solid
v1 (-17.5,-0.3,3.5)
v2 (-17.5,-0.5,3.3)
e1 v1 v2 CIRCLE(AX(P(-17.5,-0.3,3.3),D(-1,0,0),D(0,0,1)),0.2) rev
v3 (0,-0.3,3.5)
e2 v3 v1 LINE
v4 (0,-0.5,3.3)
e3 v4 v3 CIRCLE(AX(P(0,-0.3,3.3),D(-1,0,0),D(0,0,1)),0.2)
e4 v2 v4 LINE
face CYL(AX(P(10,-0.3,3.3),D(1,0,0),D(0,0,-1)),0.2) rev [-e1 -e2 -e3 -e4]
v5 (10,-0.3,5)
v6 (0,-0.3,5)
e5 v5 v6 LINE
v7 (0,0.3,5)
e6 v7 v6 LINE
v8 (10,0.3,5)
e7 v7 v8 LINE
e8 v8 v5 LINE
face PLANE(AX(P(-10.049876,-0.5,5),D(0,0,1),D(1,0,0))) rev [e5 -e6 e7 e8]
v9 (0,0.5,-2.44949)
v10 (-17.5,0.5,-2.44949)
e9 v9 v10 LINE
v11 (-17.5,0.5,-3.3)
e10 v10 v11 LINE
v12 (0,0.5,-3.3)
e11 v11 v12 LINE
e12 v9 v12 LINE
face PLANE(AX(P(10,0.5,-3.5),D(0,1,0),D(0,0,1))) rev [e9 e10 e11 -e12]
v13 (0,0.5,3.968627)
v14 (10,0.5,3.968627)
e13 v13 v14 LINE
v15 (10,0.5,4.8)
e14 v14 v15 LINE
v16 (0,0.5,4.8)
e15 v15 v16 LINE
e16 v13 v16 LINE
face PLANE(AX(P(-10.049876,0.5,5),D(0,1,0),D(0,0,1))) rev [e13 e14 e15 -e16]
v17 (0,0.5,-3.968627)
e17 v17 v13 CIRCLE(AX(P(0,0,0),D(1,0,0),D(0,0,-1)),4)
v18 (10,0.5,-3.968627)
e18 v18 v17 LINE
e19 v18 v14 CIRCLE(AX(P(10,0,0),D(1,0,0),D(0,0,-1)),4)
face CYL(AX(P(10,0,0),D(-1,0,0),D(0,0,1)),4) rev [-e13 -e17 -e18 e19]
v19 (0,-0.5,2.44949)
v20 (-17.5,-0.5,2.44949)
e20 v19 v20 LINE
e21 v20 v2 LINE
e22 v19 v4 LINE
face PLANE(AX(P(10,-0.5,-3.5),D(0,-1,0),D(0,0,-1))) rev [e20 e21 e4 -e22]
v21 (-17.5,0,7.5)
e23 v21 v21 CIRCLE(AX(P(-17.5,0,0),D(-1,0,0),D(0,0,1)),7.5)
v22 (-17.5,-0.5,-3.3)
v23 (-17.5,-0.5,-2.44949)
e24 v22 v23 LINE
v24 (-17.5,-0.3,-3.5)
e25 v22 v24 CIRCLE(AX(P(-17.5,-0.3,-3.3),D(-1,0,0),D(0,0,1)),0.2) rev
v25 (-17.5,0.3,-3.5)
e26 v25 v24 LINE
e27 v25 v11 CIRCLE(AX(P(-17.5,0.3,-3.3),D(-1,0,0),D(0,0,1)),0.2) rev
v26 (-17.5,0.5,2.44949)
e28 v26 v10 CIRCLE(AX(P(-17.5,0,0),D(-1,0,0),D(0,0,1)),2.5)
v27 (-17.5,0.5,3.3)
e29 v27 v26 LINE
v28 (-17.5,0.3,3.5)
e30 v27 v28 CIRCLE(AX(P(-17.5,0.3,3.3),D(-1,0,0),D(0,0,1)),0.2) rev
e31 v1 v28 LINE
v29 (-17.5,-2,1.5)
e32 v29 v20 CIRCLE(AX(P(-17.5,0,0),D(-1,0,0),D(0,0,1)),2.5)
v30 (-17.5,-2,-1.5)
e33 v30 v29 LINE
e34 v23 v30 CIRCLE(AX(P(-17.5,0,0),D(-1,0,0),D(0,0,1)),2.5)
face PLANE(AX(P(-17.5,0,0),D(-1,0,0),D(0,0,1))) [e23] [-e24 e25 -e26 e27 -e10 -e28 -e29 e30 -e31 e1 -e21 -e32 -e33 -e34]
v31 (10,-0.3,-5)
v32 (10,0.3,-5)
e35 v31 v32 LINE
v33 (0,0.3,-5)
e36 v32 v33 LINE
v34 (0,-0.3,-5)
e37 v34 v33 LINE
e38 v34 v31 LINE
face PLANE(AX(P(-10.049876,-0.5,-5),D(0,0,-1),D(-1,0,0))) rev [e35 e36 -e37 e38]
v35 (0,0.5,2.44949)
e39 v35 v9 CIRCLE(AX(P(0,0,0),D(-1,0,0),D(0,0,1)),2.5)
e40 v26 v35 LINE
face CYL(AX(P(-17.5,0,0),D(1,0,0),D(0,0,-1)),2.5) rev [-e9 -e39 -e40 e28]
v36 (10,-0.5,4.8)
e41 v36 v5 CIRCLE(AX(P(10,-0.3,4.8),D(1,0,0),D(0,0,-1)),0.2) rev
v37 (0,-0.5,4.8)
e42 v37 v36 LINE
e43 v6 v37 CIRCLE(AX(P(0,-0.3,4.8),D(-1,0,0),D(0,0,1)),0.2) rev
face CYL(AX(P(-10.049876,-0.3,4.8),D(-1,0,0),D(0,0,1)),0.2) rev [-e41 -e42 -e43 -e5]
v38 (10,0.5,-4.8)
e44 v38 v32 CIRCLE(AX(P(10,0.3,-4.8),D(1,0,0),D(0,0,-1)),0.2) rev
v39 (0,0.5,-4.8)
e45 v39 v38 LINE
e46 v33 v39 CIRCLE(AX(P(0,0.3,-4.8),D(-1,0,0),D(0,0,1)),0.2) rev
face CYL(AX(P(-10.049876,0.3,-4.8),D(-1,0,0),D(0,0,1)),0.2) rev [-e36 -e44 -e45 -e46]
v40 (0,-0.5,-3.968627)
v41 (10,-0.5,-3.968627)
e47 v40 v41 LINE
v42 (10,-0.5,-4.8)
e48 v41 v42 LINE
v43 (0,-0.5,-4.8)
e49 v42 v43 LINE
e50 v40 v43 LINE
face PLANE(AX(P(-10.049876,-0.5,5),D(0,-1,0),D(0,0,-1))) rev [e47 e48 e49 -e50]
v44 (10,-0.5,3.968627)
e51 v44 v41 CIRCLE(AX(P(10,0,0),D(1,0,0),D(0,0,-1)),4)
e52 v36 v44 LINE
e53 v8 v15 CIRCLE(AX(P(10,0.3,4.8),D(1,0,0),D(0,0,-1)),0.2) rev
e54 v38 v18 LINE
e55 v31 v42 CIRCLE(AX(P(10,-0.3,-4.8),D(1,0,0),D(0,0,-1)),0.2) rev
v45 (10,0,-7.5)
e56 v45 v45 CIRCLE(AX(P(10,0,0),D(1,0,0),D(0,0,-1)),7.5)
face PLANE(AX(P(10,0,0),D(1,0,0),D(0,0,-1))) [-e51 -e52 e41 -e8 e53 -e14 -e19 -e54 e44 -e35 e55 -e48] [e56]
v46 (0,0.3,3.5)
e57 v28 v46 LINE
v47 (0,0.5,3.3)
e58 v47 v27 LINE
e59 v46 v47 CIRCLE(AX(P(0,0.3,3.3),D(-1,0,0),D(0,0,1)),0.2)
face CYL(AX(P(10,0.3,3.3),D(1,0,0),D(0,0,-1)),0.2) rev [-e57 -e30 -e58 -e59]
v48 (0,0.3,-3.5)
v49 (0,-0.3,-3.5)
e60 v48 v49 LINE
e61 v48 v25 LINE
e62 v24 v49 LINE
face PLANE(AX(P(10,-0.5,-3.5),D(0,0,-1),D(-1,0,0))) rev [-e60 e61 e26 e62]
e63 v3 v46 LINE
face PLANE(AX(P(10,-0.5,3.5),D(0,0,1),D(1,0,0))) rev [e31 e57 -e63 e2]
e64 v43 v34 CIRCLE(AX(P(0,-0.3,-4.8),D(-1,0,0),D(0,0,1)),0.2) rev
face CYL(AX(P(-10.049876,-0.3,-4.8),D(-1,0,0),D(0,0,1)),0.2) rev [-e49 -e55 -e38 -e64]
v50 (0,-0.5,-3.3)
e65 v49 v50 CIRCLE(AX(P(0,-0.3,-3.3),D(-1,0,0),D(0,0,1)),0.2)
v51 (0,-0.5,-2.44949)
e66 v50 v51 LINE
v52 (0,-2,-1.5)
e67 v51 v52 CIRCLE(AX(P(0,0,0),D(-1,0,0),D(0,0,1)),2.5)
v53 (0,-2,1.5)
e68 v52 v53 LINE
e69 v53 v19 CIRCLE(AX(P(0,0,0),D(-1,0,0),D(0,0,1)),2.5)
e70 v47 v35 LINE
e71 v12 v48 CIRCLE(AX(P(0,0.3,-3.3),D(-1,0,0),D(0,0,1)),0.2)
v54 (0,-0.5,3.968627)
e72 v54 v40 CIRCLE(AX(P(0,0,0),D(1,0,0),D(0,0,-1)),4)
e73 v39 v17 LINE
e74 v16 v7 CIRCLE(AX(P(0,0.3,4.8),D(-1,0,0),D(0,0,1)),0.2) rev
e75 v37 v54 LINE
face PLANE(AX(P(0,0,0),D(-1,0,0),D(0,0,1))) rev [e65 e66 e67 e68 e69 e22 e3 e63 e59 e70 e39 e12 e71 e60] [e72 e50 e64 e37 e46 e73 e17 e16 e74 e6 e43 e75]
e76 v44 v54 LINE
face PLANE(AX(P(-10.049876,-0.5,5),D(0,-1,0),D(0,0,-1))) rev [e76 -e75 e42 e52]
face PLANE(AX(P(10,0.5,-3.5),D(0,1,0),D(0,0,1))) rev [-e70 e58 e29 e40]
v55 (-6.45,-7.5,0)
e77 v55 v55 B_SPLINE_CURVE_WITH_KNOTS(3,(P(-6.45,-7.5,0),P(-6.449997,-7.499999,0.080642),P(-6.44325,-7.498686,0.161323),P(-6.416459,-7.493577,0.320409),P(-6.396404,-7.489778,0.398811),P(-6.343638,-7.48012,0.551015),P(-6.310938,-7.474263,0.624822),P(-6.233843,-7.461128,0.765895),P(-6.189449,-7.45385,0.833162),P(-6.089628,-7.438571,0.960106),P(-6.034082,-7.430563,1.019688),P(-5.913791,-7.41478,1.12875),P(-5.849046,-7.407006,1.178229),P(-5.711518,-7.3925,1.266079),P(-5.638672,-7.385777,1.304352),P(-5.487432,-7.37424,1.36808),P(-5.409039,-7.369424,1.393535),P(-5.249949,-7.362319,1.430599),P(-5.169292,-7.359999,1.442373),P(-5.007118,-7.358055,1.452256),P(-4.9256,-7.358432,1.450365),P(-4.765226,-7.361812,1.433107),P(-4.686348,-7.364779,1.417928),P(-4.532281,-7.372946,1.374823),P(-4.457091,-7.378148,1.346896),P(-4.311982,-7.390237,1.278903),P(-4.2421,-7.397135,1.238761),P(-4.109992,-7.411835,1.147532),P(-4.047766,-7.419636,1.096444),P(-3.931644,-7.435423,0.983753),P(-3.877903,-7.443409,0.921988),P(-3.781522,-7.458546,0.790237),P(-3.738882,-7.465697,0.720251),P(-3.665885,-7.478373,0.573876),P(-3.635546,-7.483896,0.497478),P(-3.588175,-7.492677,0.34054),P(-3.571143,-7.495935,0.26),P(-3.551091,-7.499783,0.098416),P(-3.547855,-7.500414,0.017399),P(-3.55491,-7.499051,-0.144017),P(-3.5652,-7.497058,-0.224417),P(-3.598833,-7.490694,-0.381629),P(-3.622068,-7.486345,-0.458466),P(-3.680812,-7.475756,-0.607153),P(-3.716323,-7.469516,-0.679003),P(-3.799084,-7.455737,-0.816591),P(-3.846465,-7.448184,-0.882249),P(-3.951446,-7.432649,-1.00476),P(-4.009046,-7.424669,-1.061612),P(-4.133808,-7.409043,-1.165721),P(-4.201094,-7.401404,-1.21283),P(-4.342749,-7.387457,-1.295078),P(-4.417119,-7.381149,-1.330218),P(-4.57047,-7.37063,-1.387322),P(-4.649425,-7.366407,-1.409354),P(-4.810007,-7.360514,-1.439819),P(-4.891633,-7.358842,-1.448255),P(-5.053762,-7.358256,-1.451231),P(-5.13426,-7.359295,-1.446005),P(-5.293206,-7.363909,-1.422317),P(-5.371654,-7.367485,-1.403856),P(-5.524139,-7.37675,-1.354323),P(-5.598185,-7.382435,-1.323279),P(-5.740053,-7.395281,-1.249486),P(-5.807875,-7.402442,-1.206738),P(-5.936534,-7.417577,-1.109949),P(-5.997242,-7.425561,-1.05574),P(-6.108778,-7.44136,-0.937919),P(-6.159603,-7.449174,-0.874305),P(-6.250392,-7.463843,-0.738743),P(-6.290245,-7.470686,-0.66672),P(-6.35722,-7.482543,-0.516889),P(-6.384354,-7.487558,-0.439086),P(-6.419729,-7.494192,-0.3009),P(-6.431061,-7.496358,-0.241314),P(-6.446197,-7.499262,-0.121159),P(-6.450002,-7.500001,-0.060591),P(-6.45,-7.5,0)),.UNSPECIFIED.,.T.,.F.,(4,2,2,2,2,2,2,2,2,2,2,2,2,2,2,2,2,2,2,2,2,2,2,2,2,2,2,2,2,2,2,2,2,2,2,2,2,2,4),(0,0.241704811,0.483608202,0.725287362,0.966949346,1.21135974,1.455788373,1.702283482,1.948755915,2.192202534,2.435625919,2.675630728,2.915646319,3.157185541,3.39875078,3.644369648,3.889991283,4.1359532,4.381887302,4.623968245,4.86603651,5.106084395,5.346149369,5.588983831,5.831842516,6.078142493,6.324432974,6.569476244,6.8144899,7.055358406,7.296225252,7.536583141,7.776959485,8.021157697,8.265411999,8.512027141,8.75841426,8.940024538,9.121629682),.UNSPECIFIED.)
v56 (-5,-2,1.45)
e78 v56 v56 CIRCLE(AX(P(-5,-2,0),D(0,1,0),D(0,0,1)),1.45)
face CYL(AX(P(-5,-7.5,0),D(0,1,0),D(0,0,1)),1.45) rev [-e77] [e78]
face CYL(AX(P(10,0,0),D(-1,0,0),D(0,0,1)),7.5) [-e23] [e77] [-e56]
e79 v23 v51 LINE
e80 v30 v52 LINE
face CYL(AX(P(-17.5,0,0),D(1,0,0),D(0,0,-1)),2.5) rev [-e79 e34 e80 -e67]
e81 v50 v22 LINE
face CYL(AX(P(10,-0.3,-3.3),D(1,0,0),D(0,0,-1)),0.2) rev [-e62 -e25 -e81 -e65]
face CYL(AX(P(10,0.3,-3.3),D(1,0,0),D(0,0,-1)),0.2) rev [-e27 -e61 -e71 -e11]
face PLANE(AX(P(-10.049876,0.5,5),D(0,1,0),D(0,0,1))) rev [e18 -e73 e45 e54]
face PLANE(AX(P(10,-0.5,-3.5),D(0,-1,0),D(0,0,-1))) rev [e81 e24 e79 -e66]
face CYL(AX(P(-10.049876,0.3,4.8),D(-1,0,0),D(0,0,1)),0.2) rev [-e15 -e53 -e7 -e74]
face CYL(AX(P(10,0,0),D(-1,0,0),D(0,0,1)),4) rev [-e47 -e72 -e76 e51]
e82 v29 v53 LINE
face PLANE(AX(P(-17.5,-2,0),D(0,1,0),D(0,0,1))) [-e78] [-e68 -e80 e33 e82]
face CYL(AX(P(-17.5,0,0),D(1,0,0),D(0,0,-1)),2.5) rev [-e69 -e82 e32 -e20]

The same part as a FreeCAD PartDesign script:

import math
import FreeCAD as App
import Part
import Sketcher
from FreeCAD import Vector
Q = App.Units.Quantity


def edges_at(feature, points):
    """Names of the edges that pass closest to the given points."""
    edges = feature.Shape.Edges
    near = lambda p: min(range(len(edges)), key=lambda i: edges[i].distToShape(Part.Vertex(*p))[0])
    return sorted({f"Edge{near(p) + 1}" for p in points})

doc = App.newDocument("Part")
body = doc.addObject("PartDesign::Body", "Body")

# Sketch on YZ plane
sketch1 = body.newObject("Sketcher::SketchObject", "Sketch")
sketch1.AttachmentSupport = (doc.getObject("YZ_Plane"), [""])
sketch1.MapMode = "FlatFace"
sketch1.addGeometry(Part.Circle(Vector(0, 0, 0), Vector(0, 0, 1), 7.5), False)
sketch1.addGeometry(Part.Circle(Vector(0, 0, 0), Vector(0, 0, 1), 4), False)
sketch1.addConstraint(Sketcher.Constraint("Coincident", 0, 3, -1, 1))
sketch1.addConstraint(Sketcher.Constraint("Coincident", 1, 3, -1, 1))
sketch1.addConstraint(Sketcher.Constraint("Diameter", 0, Q("15 mm")))
sketch1.addConstraint(Sketcher.Constraint("Diameter", 1, Q("8 mm")))
pad1 = body.newObject("PartDesign::Pad", "Pad")
pad1.Profile = sketch1
pad1.Length = 10

# Sketch on YZ plane
sketch2 = body.newObject("Sketcher::SketchObject", "Sketch001")
sketch2.AttachmentSupport = (doc.getObject("YZ_Plane"), [""])
sketch2.MapMode = "FlatFace"
sketch2.AttachmentOffset = App.Placement(Vector(0, 0, -17.5), App.Rotation())
sketch2.addGeometry(Part.Circle(Vector(0, 0, 0), Vector(0, 0, 1), 7.5), False)
sketch2.addGeometry(Part.LineSegment(Vector(-2, 1.5, 0), Vector(-2, -1.5, 0)), False)
sketch2.addGeometry(Part.ArcOfCircle(Part.Circle(Vector(0, 0, 0), Vector(0, 0, 1), 2.5), math.radians(-143), math.radians(143)), False)
sketch2.addConstraint(Sketcher.Constraint("Coincident", 1, 1, 2, 2))
sketch2.addConstraint(Sketcher.Constraint("Coincident", 2, 1, 1, 2))
sketch2.addConstraint(Sketcher.Constraint("Vertical", 1))
sketch2.addConstraint(Sketcher.Constraint("Coincident", 0, 3, -1, 1))
sketch2.addConstraint(Sketcher.Constraint("Coincident", 2, 3, -1, 1))
sketch2.addConstraint(Sketcher.Constraint("Diameter", 0, Q("15 mm")))
sketch2.addConstraint(Sketcher.Constraint("Radius", 2, Q("2.5 mm")))
sketch2.addConstraint(Sketcher.Constraint("DistanceY", 1, 2, 1, 1, Q("3 mm")))
pad2 = body.newObject("PartDesign::Pad", "Pad001")
pad2.Profile = sketch2
pad2.Length = 17.5

# Sketch on YZ plane
sketch3 = body.newObject("Sketcher::SketchObject", "Sketch002")
sketch3.AttachmentSupport = (doc.getObject("YZ_Plane"), [""])
sketch3.MapMode = "FlatFace"
sketch3.AttachmentOffset = App.Placement(Vector(0, 0, -17.5), App.Rotation())
sketch3.addGeometry(Part.LineSegment(Vector(0.5, -3.5, 0), Vector(-0.5, -3.5, 0)), False)
sketch3.addGeometry(Part.LineSegment(Vector(-0.5, -3.5, 0), Vector(-0.5, 3.5, 0)), False)
sketch3.addGeometry(Part.LineSegment(Vector(-0.5, 3.5, 0), Vector(0.5, 3.5, 0)), False)
sketch3.addGeometry(Part.LineSegment(Vector(0.5, 3.5, 0), Vector(0.5, -3.5, 0)), False)
sketch3.addConstraint(Sketcher.Constraint("Coincident", 0, 2, 1, 1))
sketch3.addConstraint(Sketcher.Constraint("Coincident", 1, 2, 2, 1))
sketch3.addConstraint(Sketcher.Constraint("Coincident", 2, 2, 3, 1))
sketch3.addConstraint(Sketcher.Constraint("Coincident", 3, 2, 0, 1))
sketch3.addConstraint(Sketcher.Constraint("Horizontal", 0))
sketch3.addConstraint(Sketcher.Constraint("Vertical", 1))
sketch3.addConstraint(Sketcher.Constraint("Horizontal", 2))
sketch3.addConstraint(Sketcher.Constraint("Vertical", 3))
sketch3.addConstraint(Sketcher.Constraint("Symmetric", 0, 2, 2, 2, -1, 1))
sketch3.addConstraint(Sketcher.Constraint("DistanceX", 0, 2, 0, 1, Q("1 mm")))
sketch3.addConstraint(Sketcher.Constraint("DistanceY", 1, 1, 1, 2, Q("7 mm")))
pocket1 = body.newObject("PartDesign::Pocket", "Pocket")
pocket1.Profile = sketch3
pocket1.Type = "ThroughAll"
pocket1.Reversed = True

# Sketch on YZ plane
sketch4 = body.newObject("Sketcher::SketchObject", "Sketch003")
sketch4.AttachmentSupport = (doc.getObject("YZ_Plane"), [""])
sketch4.MapMode = "FlatFace"
sketch4.AttachmentOffset = App.Placement(Vector(0, 0, 10), App.Rotation())
sketch4.addGeometry(Part.LineSegment(Vector(0.5, 5, 0), Vector(-0.5, 5, 0)), False)
sketch4.addGeometry(Part.LineSegment(Vector(-0.5, 5, 0), Vector(-0.5, -5, 0)), False)
sketch4.addGeometry(Part.LineSegment(Vector(-0.5, -5, 0), Vector(0.5, -5, 0)), False)
sketch4.addGeometry(Part.LineSegment(Vector(0.5, -5, 0), Vector(0.5, 5, 0)), False)
sketch4.addConstraint(Sketcher.Constraint("Coincident", 0, 2, 1, 1))
sketch4.addConstraint(Sketcher.Constraint("Coincident", 1, 2, 2, 1))
sketch4.addConstraint(Sketcher.Constraint("Coincident", 2, 2, 3, 1))
sketch4.addConstraint(Sketcher.Constraint("Coincident", 3, 2, 0, 1))
sketch4.addConstraint(Sketcher.Constraint("Horizontal", 0))
sketch4.addConstraint(Sketcher.Constraint("Vertical", 1))
sketch4.addConstraint(Sketcher.Constraint("Horizontal", 2))
sketch4.addConstraint(Sketcher.Constraint("Vertical", 3))
sketch4.addConstraint(Sketcher.Constraint("Symmetric", 0, 2, 2, 2, -1, 1))
sketch4.addConstraint(Sketcher.Constraint("DistanceX", 0, 2, 0, 1, Q("1 mm")))
sketch4.addConstraint(Sketcher.Constraint("DistanceY", 1, 2, 1, 1, Q("10 mm")))
pocket2 = body.newObject("PartDesign::Pocket", "Pocket001")
pocket2.Profile = sketch4
pocket2.Length = 10
doc.recompute()

fillet = body.newObject("PartDesign::Fillet", "Fillet")
fillet.Base = (pocket2, edges_at(pocket2, [
    (-8.75, 0.5, 3.5),
    (-8.75, -0.5, 3.5),
    (-8.75, -0.5, -3.5),
    (-8.75, 0.5, -3.5),
    (5, 0.5, 5),
    (5, -0.5, 5),
    (5, -0.5, -5),
    (5, 0.5, -5),
]))
fillet.Radius = 0.2

# Sketch on XZ plane
sketch5 = body.newObject("Sketcher::SketchObject", "Sketch004")
sketch5.AttachmentSupport = (doc.getObject("XZ_Plane"), [""])
sketch5.MapMode = "FlatFace"
sketch5.AttachmentOffset = App.Placement(Vector(0, 0, 2), App.Rotation())
sketch5.addGeometry(Part.Circle(Vector(-5, 0, 0), Vector(0, 0, 1), 1.4), False)
sketch5.addConstraint(Sketcher.Constraint("PointOnObject", 0, 3, -1))
sketch5.addConstraint(Sketcher.Constraint("Diameter", 0, Q("2.9 mm")))
sketch5.addConstraint(Sketcher.Constraint("DistanceX", 0, 3, -1, 1, Q("5 mm")))
pocket3 = body.newObject("PartDesign::Pocket", "Pocket002")
pocket3.Profile = sketch5
pocket3.Type = "ThroughAll"
pocket3.Reversed = True

doc.recompute()
